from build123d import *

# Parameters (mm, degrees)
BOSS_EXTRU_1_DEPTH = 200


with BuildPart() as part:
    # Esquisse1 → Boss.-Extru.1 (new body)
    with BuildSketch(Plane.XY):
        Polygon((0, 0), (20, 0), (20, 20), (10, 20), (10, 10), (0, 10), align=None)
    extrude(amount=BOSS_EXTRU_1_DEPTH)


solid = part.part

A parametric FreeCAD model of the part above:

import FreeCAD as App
import Part
import Sketcher

V = App.Vector
Q = App.Units.Quantity

doc = App.newDocument("Part")
body = doc.addObject("PartDesign::Body", "Body")

# Sketch on XY plane
sketch1 = body.newObject("Sketcher::SketchObject", "Sketch")
sketch1.AttachmentSupport = (doc.getObject("XY_Plane"), [""])
sketch1.MapMode = "FlatFace"
sketch1.addGeometry([
    Part.LineSegment(V(0, 0, 0), V(20, 0, 0)),  # 0
    Part.LineSegment(V(20, 0, 0), V(20, 20, 0)),  # 1
    Part.LineSegment(V(20, 20, 0), V(10, 20, 0)),  # 2
    Part.LineSegment(V(10, 20, 0), V(10, 10, 0)),  # 3
    Part.LineSegment(V(10, 10, 0), V(0, 10, 0)),  # 4
    Part.LineSegment(V(0, 10, 0), V(0, 0, 0)),  # 5
], False)
sketch1.addConstraint([
    Sketcher.Constraint("Coincident", 0, 2, 1, 1),
    Sketcher.Constraint("Coincident", 1, 2, 2, 1),
    Sketcher.Constraint("Coincident", 2, 2, 3, 1),
    Sketcher.Constraint("Coincident", 3, 2, 4, 1),
    Sketcher.Constraint("Coincident", 4, 2, 5, 1),
    Sketcher.Constraint("Coincident", 5, 2, 0, 1),
    Sketcher.Constraint("Horizontal", 0),
    Sketcher.Constraint("Vertical", 1),
    Sketcher.Constraint("Horizontal", 2),
    Sketcher.Constraint("Vertical", 3),
    Sketcher.Constraint("Horizontal", 4),
    Sketcher.Constraint("Vertical", 5),
    Sketcher.Constraint("Coincident", 5, 2, -1, 1),
    Sketcher.Constraint("Equal", 2, 4),
    Sketcher.Constraint("Equal", 0, 1),
    Sketcher.Constraint("Equal", 4, 3),
    Sketcher.Constraint("DistanceX", 0, 1, 0, 2, Q("20 mm")),
])
pad1 = body.newObject("PartDesign::Pad", "Pad")
pad1.Profile = sketch1
pad1.Length = 200

doc.recompute()
